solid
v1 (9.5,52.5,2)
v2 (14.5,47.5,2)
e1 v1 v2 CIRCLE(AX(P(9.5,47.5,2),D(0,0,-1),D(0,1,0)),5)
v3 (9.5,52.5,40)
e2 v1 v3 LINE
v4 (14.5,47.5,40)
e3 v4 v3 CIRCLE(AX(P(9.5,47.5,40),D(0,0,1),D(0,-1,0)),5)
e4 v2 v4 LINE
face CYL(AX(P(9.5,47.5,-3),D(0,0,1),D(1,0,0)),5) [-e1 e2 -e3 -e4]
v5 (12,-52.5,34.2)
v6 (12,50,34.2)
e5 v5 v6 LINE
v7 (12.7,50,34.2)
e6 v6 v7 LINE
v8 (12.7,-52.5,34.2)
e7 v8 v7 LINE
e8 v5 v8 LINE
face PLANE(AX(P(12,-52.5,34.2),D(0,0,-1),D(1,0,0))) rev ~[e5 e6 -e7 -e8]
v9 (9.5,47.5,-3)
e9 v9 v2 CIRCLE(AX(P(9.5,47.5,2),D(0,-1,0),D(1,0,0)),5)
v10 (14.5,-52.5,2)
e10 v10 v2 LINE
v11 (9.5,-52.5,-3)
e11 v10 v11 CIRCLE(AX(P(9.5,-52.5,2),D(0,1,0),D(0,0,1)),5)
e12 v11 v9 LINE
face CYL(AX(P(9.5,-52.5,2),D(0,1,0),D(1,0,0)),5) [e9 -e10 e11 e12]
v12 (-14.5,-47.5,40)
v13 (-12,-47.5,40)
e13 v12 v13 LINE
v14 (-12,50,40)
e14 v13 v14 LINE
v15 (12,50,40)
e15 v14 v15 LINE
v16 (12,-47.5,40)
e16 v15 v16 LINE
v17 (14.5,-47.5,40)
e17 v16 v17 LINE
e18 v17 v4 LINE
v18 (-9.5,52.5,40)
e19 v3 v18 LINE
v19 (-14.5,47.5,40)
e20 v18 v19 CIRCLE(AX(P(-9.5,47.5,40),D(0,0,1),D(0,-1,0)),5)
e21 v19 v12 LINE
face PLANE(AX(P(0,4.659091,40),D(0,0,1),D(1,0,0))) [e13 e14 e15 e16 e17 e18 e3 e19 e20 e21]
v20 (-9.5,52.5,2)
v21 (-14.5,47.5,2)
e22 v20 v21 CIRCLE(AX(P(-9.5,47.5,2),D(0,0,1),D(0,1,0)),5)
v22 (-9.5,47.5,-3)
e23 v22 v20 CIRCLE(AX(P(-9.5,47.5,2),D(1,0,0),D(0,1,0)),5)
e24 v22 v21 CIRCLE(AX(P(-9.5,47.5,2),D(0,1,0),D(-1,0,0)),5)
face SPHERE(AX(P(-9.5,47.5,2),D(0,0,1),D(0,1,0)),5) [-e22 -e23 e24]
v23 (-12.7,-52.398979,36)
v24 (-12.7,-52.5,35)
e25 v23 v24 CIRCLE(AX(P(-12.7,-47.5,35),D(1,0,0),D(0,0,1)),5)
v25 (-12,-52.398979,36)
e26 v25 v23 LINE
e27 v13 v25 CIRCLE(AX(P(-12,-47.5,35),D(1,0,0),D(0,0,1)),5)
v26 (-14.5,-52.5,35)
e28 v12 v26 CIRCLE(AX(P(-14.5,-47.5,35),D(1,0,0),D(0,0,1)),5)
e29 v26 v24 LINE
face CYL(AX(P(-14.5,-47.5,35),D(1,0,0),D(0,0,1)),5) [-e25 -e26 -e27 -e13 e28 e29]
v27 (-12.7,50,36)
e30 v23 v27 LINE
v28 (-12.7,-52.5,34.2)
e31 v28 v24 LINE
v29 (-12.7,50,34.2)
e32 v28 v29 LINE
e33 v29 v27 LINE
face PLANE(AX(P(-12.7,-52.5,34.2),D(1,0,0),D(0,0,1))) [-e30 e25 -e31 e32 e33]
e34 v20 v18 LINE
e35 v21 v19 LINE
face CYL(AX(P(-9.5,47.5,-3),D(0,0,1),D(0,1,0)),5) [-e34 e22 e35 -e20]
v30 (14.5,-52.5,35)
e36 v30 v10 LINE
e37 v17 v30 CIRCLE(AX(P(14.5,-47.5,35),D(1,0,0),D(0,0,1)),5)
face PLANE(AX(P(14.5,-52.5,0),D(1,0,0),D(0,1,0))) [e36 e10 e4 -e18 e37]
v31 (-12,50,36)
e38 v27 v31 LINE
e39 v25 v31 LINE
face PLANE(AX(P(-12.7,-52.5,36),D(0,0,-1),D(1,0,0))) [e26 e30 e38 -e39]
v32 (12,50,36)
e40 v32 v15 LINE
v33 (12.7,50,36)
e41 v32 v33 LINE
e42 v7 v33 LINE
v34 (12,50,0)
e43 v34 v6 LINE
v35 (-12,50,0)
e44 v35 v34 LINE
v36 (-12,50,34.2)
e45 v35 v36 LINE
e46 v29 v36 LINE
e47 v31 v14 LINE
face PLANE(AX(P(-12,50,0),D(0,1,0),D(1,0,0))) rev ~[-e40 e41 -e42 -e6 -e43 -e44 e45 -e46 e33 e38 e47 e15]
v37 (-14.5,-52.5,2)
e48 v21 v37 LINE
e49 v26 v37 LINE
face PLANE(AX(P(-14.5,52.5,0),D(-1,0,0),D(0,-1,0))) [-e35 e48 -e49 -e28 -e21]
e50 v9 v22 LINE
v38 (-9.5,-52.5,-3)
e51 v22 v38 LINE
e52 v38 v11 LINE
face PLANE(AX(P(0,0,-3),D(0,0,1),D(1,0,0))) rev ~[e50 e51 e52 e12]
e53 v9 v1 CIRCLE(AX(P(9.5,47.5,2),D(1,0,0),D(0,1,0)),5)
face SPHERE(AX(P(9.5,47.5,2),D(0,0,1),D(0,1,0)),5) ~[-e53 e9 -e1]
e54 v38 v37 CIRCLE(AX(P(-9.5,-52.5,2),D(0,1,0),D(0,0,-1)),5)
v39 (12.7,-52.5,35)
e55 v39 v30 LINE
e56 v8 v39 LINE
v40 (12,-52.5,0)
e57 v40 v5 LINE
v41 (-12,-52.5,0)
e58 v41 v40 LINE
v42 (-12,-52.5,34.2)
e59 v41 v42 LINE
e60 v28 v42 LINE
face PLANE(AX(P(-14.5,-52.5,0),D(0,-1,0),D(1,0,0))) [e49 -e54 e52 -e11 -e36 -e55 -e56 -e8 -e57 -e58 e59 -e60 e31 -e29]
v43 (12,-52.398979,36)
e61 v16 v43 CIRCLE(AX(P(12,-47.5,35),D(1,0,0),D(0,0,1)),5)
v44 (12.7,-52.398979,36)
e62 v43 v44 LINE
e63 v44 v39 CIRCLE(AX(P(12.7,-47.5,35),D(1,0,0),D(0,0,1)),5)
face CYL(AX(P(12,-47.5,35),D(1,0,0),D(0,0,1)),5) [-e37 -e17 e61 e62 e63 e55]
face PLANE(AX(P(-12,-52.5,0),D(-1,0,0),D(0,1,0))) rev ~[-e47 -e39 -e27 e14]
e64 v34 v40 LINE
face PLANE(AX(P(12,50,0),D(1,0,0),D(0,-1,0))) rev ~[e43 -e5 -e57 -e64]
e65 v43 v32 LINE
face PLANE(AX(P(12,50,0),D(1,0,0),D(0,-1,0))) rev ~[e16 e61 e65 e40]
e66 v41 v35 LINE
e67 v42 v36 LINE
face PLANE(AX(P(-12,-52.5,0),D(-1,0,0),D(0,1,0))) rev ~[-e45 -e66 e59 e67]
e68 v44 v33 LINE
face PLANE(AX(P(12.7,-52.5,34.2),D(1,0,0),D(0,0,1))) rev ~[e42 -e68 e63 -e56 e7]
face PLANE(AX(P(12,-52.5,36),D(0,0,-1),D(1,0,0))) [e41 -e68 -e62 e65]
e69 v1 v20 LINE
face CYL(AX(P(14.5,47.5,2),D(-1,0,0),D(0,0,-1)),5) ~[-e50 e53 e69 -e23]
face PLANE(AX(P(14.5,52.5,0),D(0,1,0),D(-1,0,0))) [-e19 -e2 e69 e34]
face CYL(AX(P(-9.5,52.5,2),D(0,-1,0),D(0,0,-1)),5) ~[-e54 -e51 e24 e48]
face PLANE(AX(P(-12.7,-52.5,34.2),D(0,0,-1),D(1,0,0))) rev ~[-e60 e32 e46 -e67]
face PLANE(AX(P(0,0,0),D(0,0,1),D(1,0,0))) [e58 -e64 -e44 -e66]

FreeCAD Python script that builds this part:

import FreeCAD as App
import Part
import Sketcher
Q = App.Units.Quantity


def edges_at(feature, points):
    """Names of the edges that pass closest to the given points."""
    edges = feature.Shape.Edges
    near = lambda p: min(range(len(edges)), key=lambda i: edges[i].distToShape(Part.Vertex(*p))[0])
    return sorted({f"Edge{near(p) + 1}" for p in points})


def add_polygon(sketch, points):
    """Adds a closed chain of lines whose ends are joined by coincident constraints."""
    first, n = sketch.GeometryCount, len(points)
    for a, b in zip(points, points[1:] + points[:1]):
        sketch.addGeometry(Part.LineSegment(App.Vector(*a, 0), App.Vector(*b, 0)), False)
    for i in range(n):
        sketch.addConstraint(Sketcher.Constraint("Coincident", first + i, 2, first + (i + 1) % n, 1))

doc = App.newDocument("Part")
body = doc.addObject("PartDesign::Body", "Body")

# Sketch on XY plane
sketch1 = doc.addObject("Sketcher::SketchObject", "Sketch")
body.addObject(sketch1)
sketch1.AttachmentSupport = (doc.XY_Plane, [""])
sketch1.MapMode = "FlatFace"
add_polygon(sketch1, [(12, 50), (12, -52.5), (14.5, -52.5), (14.5, 52.5), (-14.5, 52.5), (-14.5, -52.5), (-12, -52.5), (-12, 50)])  # lines 0-7
sketch1.addConstraint(Sketcher.Constraint("Vertical", 0))
sketch1.addConstraint(Sketcher.Constraint("Horizontal", 1))
sketch1.addConstraint(Sketcher.Constraint("Vertical", 2))
sketch1.addConstraint(Sketcher.Constraint("Horizontal", 3))
sketch1.addConstraint(Sketcher.Constraint("Vertical", 4))
sketch1.addConstraint(Sketcher.Constraint("Horizontal", 5))
sketch1.addConstraint(Sketcher.Constraint("Vertical", 6))
sketch1.addConstraint(Sketcher.Constraint("Horizontal", 7))
sketch1.addConstraint(Sketcher.Constraint("Symmetric", 1, 2, 3, 2, -1, 1))
sketch1.addConstraint(Sketcher.Constraint("Symmetric", 0, 2, 5, 2, -2))
sketch1.addConstraint(Sketcher.Constraint("DistanceX", 3, 2, 3, 1, Q("29 mm")))
sketch1.addConstraint(Sketcher.Constraint("DistanceX", 7, 1, 7, 2, Q("24 mm")))
sketch1.addConstraint(Sketcher.Constraint("DistanceY", 2, 1, 2, 2, Q("105 mm")))
sketch1.addConstraint(Sketcher.Constraint("DistanceY", 0, 2, 0, 1, Q("102.5 mm")))
pad1 = doc.addObject("PartDesign::Pad", "Pad")
body.addObject(pad1)
pad1.Profile = sketch1
pad1.Length = 40

# Sketch on XY plane
sketch2 = doc.addObject("Sketcher::SketchObject", "Sketch001")
body.addObject(sketch2)
sketch2.AttachmentSupport = (doc.XY_Plane, [""])
sketch2.MapMode = "FlatFace"
add_polygon(sketch2, [(14, -52), (14, 52), (-14, 52), (-14, -52)])  # lines 0-3
sketch2.addConstraint(Sketcher.Constraint("Vertical", 0))
sketch2.addConstraint(Sketcher.Constraint("Horizontal", 1))
sketch2.addConstraint(Sketcher.Constraint("Vertical", 2))
sketch2.addConstraint(Sketcher.Constraint("Horizontal", 3))
sketch2.addConstraint(Sketcher.Constraint("Symmetric", 0, 2, 2, 2, -1, 1))
sketch2.addConstraint(Sketcher.Constraint("DistanceX", 1, 2, 1, 1, Q("29 mm")))
sketch2.addConstraint(Sketcher.Constraint("DistanceY", 0, 1, 0, 2, Q("105 mm")))
pad2 = doc.addObject("PartDesign::Pad", "Pad001")
body.addObject(pad2)
pad2.Profile = sketch2
pad2.Length = 3
pad2.Reversed = True

# Sketch on XZ plane
sketch3 = doc.addObject("Sketcher::SketchObject", "Sketch002")
body.addObject(sketch3)
sketch3.AttachmentSupport = (doc.XZ_Plane, [""])
sketch3.MapMode = "FlatFace"
sketch3.AttachmentOffset = App.Placement(App.Vector(0, 0, 52.5), App.Rotation())
add_polygon(sketch3, [(-12.7, 36), (-12.7, 34.2), (-12, 34.2), (-12, 36)])  # lines 0-3
add_polygon(sketch3, [(12, 36), (12, 34.2), (12.7, 34.2), (12.7, 36)])  # lines 4-7
sketch3.addConstraint(Sketcher.Constraint("Vertical", 0))
sketch3.addConstraint(Sketcher.Constraint("Horizontal", 1))
sketch3.addConstraint(Sketcher.Constraint("Vertical", 2))
sketch3.addConstraint(Sketcher.Constraint("Horizontal", 3))
sketch3.addConstraint(Sketcher.Constraint("Vertical", 4))
sketch3.addConstraint(Sketcher.Constraint("Horizontal", 5))
sketch3.addConstraint(Sketcher.Constraint("Vertical", 6))
sketch3.addConstraint(Sketcher.Constraint("Horizontal", 7))
sketch3.addConstraint(Sketcher.Constraint("Symmetric", 1, 2, 4, 2, -2))
sketch3.addConstraint(Sketcher.Constraint("Symmetric", 3, 2, 6, 2, -2))
sketch3.addConstraint(Sketcher.Constraint("DistanceX", 1, 1, 1, 2, Q("0.7 mm")))
sketch3.addConstraint(Sketcher.Constraint("DistanceY", 0, 2, 0, 1, Q("1.8 mm")))
sketch3.addConstraint(Sketcher.Constraint("DistanceX", 1, 2, -1, 1, Q("12 mm")))
sketch3.addConstraint(Sketcher.Constraint("DistanceY", -1, 1, 2, 2, Q("36 mm")))
pocket1 = doc.addObject("PartDesign::Pocket", "Pocket")
body.addObject(pocket1)
pocket1.Profile = sketch3
pocket1.Length = 102.5
doc.recompute()

fillet = doc.addObject("PartDesign::Fillet", "Fillet")
body.addObject(fillet)
fillet.Base = (pocket1, edges_at(pocket1, [
    (-13.25, -52.5, 40),
    (13.25, -52.5, 40),
    (-14.5, 52.5, 18.5),
    (14.5, 52.5, 18.5),
    (0, 52.5, -3),
    (14.5, 0, -3),
    (-14.5, 0, -3),
]))
fillet.Radius = 5

doc.recompute()
